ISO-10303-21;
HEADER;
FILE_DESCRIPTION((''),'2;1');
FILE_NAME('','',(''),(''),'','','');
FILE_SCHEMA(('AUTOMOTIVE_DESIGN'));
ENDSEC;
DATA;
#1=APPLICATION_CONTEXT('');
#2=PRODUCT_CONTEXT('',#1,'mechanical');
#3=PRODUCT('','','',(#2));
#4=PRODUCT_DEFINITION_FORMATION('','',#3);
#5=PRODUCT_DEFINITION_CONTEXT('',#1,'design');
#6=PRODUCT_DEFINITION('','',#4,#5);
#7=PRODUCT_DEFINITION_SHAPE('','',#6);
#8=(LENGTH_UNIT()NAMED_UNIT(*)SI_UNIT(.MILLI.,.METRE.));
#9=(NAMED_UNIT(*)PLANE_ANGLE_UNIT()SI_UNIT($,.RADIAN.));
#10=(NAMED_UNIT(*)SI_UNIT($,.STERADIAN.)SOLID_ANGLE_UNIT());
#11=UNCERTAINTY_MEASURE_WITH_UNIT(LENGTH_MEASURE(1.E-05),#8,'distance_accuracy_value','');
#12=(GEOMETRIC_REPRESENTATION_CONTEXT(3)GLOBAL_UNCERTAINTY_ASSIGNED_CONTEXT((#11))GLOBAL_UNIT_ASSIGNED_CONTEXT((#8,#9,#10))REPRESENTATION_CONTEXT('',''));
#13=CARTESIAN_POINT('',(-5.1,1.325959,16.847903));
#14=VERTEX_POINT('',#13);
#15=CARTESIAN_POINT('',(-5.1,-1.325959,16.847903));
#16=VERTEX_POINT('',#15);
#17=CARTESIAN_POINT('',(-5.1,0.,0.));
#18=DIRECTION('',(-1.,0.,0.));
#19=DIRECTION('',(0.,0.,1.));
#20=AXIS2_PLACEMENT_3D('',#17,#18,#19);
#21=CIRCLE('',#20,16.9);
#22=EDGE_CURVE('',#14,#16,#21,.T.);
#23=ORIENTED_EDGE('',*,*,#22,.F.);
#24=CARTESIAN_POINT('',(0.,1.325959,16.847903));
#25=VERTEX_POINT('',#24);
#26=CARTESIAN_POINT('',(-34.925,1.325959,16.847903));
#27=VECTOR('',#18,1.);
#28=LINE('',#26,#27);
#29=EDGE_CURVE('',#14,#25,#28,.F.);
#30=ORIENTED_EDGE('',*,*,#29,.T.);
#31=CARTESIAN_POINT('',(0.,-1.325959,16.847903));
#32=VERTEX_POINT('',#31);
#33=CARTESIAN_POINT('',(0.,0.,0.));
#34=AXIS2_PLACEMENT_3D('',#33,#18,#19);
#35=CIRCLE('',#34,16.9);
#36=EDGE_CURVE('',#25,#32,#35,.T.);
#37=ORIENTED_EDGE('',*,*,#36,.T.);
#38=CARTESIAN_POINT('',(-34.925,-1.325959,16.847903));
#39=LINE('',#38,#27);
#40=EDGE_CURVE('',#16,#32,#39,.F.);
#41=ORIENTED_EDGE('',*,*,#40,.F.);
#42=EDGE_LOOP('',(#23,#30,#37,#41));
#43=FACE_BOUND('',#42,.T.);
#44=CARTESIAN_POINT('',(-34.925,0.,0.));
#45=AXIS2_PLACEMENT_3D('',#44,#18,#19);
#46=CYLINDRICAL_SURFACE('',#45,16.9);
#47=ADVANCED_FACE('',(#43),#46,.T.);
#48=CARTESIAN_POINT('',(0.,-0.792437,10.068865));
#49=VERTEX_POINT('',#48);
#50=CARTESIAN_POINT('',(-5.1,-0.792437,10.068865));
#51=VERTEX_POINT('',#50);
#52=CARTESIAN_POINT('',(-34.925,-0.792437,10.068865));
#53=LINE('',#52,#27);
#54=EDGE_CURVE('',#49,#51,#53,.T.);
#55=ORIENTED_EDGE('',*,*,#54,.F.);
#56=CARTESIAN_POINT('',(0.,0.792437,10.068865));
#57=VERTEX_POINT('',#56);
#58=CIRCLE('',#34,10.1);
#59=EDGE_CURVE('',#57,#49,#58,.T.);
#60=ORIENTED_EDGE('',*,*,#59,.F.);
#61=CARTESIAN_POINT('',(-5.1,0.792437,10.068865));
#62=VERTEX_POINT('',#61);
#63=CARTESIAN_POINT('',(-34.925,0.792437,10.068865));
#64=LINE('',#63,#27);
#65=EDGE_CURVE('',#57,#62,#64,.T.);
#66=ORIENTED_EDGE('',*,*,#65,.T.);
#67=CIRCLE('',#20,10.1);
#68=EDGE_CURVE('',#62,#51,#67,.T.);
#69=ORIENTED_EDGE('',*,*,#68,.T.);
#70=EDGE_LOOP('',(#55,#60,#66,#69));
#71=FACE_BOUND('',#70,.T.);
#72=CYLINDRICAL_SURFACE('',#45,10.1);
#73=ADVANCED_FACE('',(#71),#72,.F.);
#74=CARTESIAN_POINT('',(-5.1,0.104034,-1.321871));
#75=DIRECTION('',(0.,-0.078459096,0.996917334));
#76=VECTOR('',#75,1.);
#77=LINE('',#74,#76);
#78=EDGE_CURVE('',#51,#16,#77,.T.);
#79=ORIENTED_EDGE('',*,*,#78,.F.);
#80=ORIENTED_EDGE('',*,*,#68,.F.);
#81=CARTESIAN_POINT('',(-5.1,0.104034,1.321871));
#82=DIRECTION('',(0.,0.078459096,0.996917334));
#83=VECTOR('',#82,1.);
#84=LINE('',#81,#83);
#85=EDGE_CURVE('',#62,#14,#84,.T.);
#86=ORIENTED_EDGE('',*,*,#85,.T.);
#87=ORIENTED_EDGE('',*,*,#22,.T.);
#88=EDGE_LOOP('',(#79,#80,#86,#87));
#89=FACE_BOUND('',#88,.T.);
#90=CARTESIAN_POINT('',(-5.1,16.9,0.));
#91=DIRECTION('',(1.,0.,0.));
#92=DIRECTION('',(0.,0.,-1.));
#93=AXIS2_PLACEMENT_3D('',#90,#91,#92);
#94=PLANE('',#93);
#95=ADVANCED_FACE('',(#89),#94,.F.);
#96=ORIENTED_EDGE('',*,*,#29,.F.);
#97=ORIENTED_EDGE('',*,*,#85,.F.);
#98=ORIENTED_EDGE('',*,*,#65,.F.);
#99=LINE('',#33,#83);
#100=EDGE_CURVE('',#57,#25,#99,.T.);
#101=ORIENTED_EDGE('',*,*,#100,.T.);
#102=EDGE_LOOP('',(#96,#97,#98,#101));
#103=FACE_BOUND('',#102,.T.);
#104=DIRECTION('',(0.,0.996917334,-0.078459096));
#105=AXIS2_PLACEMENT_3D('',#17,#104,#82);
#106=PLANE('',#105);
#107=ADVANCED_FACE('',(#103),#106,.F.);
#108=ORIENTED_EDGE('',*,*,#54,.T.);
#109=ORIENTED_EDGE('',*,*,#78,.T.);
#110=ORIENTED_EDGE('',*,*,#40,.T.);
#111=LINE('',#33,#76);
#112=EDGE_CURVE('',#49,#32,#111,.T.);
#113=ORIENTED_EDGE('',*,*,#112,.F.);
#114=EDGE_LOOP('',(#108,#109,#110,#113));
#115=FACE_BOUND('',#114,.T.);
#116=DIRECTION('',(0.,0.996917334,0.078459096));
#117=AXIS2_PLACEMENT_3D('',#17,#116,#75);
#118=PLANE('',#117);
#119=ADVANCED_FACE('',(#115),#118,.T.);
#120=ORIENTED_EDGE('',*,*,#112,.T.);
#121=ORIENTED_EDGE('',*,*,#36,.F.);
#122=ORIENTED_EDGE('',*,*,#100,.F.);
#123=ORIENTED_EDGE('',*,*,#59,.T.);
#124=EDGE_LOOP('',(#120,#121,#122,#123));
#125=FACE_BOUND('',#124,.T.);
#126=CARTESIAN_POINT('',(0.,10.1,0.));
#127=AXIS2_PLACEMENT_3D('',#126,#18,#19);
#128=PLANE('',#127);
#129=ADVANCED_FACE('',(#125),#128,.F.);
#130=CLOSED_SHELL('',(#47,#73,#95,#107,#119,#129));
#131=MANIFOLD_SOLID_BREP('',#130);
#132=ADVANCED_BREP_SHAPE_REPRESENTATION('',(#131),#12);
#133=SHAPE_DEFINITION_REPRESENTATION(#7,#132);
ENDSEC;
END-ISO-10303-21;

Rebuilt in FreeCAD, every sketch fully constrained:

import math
import FreeCAD as App
import Part
import Sketcher
Q = App.Units.Quantity


def add_polygon(sketch, points):
    """Adds a closed chain of lines whose ends are joined by coincident constraints."""
    first, n = sketch.GeometryCount, len(points)
    for a, b in zip(points, points[1:] + points[:1]):
        sketch.addGeometry(Part.LineSegment(App.Vector(*a, 0), App.Vector(*b, 0)), False)
    for i in range(n):
        sketch.addConstraint(Sketcher.Constraint("Coincident", first + i, 2, first + (i + 1) % n, 1))

doc = App.newDocument("Part")
params = doc.addObject("Spreadsheet::Sheet", "Params")
for row, (alias, value) in enumerate([
    ("sketch1_width", "5.1 mm"),
    ("sketch1_height", "6.8 mm"),
    ("revolution_angle", "360 deg"),
], start=1):
    params.set(f"A{row}", alias)
    params.set(f"B{row}", "=" + value)
    params.setAlias(f"B{row}", alias)

body = doc.addObject("PartDesign::Body", "Body")

# Sketch on XY plane
sketch1 = doc.addObject("Sketcher::SketchObject", "Sketch")
body.addObject(sketch1)
sketch1.AttachmentSupport = (doc.XY_Plane, [""])
sketch1.MapMode = "FlatFace"
add_polygon(sketch1, [(-5, 17), (-5, 10), (0, 10), (0, 17)])  # lines 0-3
sketch1.addConstraint(Sketcher.Constraint("Vertical", 0))
sketch1.addConstraint(Sketcher.Constraint("Horizontal", 1))
sketch1.addConstraint(Sketcher.Constraint("Vertical", 2))
sketch1.addConstraint(Sketcher.Constraint("Horizontal", 3))
sketch1.addConstraint(Sketcher.Constraint("PointOnObject", 1, 2, -2))
sketch1.addConstraint(Sketcher.Constraint("DistanceX", 1, 1, 1, 2, 5.1))
sketch1.addConstraint(Sketcher.Constraint("DistanceY", 0, 2, 0, 1, 6.8))
sketch1.addConstraint(Sketcher.Constraint("DistanceY", -1, 1, 0, 2, 10.1))
sketch1.setExpression("Constraints[9]", "Params.sketch1_width")
sketch1.setExpression("Constraints[10]", "Params.sketch1_height")
revolution = doc.addObject("PartDesign::Revolution", "Revolution")
body.addObject(revolution)
revolution.Profile = sketch1
revolution.ReferenceAxis = (sketch1, ["H_Axis"])
revolution.setExpression("Angle", "Params.revolution_angle")

# Sketch on YZ plane
sketch2 = doc.addObject("Sketcher::SketchObject", "Sketch001")
body.addObject(sketch2)
sketch2.AttachmentSupport = (doc.YZ_Plane, [""])
sketch2.MapMode = "FlatFace"
sketch2.addGeometry(Part.LineSegment(App.Vector(0, 0, 0), App.Vector(-1.4, 17.2, 0)), False)
sketch2.addGeometry(Part.ArcOfCircle(Part.Circle(App.Vector(0, 0, 0), App.Vector(0, 0, 1), 17.2), math.radians(85.5), math.radians(94.5)), False)
sketch2.addGeometry(Part.LineSegment(App.Vector(1.4, 17.2, 0), App.Vector(0, 0, 0)), False)
sketch2.addConstraint(Sketcher.Constraint("Coincident", 0, 2, 1, 2))
sketch2.addConstraint(Sketcher.Constraint("Coincident", 1, 1, 2, 1))
sketch2.addConstraint(Sketcher.Constraint("Coincident", 2, 2, 0, 1))
sketch2.addConstraint(Sketcher.Constraint("Coincident", 1, 3, -1, 1))
sketch2.addConstraint(Sketcher.Constraint("Coincident", 2, 2, -1, 1))
sketch2.addConstraint(Sketcher.Constraint("Horizontal", 0, 2, 1, 1))
sketch2.addConstraint(Sketcher.Constraint("Angle", 0, Q("94.5 deg")))
sketch2.addConstraint(Sketcher.Constraint("Radius", 1, 17.238))
pocket1 = doc.addObject("PartDesign::Pocket", "Pocket")
body.addObject(pocket1)
pocket1.Profile = sketch2
pocket1.Type = "ThroughAll"

doc.recompute()
